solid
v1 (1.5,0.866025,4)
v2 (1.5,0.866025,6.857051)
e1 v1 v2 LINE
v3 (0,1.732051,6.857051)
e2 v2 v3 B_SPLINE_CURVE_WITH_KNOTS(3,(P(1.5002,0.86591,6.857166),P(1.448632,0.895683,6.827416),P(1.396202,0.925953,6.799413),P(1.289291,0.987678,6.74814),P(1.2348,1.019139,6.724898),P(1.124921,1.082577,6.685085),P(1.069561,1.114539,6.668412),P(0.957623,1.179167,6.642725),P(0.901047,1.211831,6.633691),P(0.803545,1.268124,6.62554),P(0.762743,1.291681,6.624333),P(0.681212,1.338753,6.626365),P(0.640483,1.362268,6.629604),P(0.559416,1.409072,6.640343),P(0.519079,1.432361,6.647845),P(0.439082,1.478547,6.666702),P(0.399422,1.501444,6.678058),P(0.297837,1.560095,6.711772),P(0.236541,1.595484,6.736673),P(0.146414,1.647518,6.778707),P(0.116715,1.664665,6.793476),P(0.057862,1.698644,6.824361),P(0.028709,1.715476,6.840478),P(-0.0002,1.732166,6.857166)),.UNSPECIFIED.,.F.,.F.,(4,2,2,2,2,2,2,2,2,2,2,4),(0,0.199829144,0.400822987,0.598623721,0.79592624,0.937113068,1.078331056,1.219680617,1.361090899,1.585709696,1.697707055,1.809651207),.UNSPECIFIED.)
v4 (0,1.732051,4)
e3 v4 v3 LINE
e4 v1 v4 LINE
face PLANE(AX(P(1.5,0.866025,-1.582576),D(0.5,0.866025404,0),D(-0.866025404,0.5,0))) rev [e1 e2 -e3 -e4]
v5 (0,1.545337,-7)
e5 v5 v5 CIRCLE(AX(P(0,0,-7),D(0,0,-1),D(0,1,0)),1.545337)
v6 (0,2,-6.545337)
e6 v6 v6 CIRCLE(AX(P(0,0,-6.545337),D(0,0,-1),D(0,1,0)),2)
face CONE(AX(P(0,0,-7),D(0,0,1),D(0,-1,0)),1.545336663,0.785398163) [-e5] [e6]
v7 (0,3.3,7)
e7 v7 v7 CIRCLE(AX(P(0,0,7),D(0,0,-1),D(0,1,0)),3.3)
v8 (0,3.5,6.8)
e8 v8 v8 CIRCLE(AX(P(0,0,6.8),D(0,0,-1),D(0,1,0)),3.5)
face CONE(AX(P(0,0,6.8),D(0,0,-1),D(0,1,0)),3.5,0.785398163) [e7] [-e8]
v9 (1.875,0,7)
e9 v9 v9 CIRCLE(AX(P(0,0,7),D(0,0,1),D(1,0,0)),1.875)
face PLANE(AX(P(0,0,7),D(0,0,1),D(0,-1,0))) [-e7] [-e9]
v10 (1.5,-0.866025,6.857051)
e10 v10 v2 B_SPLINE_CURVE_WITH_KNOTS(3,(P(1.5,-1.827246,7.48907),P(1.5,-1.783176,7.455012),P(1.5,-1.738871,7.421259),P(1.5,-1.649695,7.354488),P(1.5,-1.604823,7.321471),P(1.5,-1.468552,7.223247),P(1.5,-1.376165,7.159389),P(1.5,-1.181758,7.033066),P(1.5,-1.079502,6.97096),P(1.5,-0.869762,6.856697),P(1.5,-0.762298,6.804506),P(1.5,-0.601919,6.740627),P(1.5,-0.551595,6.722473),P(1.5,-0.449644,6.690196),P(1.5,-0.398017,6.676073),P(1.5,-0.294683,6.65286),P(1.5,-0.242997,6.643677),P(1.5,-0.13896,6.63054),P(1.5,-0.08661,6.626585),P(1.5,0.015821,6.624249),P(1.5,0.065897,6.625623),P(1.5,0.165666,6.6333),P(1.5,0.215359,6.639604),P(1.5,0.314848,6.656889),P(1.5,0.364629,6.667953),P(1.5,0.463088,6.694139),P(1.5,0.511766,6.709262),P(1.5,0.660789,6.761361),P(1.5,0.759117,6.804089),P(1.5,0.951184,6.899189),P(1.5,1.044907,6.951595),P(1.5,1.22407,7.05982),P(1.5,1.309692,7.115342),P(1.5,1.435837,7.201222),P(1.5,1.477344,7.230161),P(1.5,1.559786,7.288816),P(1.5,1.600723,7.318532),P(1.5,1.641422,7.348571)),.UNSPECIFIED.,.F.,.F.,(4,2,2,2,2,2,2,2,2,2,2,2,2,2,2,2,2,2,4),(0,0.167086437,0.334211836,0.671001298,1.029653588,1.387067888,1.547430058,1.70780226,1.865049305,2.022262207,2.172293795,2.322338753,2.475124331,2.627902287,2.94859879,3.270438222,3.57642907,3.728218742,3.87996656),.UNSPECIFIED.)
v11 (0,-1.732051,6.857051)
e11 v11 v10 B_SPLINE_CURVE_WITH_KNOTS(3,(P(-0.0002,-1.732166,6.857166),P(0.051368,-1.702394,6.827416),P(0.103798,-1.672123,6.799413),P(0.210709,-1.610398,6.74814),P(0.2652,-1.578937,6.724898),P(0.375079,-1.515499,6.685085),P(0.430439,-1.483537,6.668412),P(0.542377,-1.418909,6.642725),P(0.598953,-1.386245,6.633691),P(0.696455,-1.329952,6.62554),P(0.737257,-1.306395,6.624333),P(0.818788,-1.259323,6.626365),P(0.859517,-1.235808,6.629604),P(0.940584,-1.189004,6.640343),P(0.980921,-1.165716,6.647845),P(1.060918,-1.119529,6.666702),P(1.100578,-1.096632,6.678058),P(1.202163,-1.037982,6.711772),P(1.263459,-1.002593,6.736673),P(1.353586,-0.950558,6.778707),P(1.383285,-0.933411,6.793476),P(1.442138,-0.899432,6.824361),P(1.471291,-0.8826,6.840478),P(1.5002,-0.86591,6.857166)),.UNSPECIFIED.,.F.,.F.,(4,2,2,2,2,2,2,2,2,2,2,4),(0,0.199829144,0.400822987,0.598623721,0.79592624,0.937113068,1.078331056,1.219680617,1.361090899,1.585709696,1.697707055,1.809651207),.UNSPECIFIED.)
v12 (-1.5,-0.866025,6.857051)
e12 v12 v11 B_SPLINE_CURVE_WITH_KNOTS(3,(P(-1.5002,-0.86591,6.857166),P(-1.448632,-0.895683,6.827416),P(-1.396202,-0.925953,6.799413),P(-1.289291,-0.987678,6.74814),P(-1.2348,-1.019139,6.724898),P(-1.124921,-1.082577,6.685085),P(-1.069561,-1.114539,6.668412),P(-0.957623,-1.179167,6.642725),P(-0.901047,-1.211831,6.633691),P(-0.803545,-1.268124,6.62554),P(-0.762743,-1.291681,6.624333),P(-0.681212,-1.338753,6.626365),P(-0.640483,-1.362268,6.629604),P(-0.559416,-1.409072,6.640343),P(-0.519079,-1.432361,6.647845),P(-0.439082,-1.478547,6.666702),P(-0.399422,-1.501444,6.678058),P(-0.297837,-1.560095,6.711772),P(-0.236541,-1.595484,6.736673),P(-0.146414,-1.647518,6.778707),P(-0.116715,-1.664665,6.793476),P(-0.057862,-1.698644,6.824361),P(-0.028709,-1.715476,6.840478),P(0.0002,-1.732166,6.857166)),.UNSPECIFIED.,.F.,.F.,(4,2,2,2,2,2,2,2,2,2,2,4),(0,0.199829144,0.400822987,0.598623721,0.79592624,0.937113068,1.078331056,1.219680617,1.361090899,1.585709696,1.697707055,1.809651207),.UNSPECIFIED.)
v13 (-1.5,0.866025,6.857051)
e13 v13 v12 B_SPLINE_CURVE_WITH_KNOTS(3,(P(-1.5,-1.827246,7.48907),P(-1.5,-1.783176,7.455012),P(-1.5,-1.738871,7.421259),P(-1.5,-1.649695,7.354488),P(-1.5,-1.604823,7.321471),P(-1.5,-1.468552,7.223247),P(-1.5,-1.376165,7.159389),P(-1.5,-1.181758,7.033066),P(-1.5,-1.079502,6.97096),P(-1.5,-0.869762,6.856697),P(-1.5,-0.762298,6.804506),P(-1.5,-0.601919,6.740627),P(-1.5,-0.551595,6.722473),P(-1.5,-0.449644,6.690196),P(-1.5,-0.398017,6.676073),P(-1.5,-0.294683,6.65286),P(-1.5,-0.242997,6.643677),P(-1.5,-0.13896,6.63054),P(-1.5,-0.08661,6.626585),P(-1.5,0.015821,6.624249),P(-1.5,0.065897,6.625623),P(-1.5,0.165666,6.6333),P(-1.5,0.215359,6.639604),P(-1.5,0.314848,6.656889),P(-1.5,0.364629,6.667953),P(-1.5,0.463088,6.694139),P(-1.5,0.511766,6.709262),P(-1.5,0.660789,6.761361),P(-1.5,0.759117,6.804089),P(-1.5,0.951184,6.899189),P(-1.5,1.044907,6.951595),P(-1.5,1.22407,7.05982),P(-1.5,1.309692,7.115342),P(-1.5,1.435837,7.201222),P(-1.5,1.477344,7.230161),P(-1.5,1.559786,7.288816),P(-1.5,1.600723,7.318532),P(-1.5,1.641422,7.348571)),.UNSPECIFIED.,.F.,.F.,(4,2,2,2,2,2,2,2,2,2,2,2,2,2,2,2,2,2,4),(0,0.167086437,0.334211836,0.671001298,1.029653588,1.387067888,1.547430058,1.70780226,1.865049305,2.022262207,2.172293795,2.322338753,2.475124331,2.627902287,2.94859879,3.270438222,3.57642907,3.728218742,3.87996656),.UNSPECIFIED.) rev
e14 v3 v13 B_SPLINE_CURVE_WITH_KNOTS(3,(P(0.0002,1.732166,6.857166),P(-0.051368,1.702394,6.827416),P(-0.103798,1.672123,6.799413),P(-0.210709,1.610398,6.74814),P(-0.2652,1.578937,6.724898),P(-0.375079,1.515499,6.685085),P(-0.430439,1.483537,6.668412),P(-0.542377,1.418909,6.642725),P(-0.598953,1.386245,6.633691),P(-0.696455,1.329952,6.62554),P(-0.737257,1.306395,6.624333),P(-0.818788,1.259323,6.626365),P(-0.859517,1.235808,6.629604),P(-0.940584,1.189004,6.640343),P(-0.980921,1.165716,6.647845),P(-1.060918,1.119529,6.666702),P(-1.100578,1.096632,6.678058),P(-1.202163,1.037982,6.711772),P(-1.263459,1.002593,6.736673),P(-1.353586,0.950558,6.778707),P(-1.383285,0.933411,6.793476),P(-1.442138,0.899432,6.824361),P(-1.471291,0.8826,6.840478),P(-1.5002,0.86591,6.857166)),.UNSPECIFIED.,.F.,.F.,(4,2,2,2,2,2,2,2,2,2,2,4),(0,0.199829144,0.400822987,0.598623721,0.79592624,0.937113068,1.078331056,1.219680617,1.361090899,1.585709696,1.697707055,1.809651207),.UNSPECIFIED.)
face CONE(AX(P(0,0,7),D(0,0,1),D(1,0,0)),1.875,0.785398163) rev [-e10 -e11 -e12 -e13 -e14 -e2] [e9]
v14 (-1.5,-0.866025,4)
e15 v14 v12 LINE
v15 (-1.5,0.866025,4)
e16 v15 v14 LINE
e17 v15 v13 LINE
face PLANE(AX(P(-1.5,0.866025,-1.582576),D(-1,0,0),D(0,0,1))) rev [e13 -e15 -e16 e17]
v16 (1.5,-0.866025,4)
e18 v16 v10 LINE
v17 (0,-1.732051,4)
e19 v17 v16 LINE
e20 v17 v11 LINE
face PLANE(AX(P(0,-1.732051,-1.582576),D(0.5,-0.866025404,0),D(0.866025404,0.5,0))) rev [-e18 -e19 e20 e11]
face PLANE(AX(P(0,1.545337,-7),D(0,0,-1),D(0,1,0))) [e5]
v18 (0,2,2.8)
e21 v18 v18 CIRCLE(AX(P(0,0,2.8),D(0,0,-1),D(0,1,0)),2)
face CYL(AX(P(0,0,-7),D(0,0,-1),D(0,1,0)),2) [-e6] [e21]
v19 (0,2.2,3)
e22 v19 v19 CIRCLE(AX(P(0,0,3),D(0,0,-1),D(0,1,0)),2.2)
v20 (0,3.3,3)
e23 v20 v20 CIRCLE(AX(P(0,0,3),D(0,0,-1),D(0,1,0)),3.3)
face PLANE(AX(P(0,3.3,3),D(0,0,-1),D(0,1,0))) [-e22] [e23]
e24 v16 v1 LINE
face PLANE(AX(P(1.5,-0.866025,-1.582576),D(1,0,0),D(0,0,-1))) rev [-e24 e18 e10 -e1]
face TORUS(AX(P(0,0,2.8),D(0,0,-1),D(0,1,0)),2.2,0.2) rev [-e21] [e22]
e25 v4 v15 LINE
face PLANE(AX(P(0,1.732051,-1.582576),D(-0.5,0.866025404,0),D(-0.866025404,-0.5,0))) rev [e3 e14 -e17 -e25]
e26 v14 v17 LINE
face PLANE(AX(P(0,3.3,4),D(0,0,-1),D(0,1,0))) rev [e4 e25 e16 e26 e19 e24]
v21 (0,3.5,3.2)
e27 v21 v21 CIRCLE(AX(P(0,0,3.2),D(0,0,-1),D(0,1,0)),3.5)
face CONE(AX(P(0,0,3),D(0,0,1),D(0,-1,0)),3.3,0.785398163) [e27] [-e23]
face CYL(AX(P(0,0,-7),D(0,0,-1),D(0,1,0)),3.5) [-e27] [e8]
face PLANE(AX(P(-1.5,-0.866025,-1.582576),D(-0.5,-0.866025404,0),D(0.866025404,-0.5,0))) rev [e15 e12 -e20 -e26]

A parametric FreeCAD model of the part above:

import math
import FreeCAD as App
import Part
import Sketcher

V = App.Vector
Q = App.Units.Quantity

doc = App.newDocument("Part")
params = doc.addObject("Spreadsheet::Sheet", "Params")
for row, (alias, value) in enumerate([
    ("sketch1_radius", "0.2 mm"),
    ("sketch1_height", "14 mm"),
    ("sketch1_width", "3.3 mm"),
    ("sketch1_width2", "1.1 mm"),
    ("sketch1_height2", "3.6 mm"),
    ("revolution_angle", "360 deg"),
    ("pocket1_length", "3 mm"),
    ("groove_angle", "360 deg"),
], start=1):
    params.set(f"A{row}", alias)
    params.set(f"B{row}", "=" + value)
    params.setAlias(f"B{row}", alias)

body = doc.addObject("PartDesign::Body", "Body")

sketch1 = body.newObject("Sketcher::SketchObject", "Sketch")
sketch1.AttachmentSupport = (doc.getObject("YZ_Plane"), [""])
sketch1.MapMode = "FlatFace"
sketch1.addGeometry(Part.LineSegment(V(3.3, 7, 0), V(0, 7, 0)), False)
sketch1.addGeometry(Part.LineSegment(V(0, 7, 0), V(0, -7, 0)), False)
sketch1.addGeometry(Part.LineSegment(V(0, -7, 0), V(1.55, -7, 0)), False)
sketch1.addGeometry(Part.LineSegment(V(1.55, -7, 0), V(2, -6.55, 0)), False)
sketch1.addGeometry(Part.LineSegment(V(2, -6.55, 0), V(2, 2.8, 0)), False)
sketch1.addGeometry(Part.ArcOfCircle(Part.Circle(V(2.2, 2.8, 0), V(0, 0, 1), 0.2), math.radians(90), math.radians(180)), False)
sketch1.addGeometry(Part.LineSegment(V(2.2, 3, 0), V(3.3, 3, 0)), False)
sketch1.addGeometry(Part.LineSegment(V(3.3, 3, 0), V(3.5, 3.2, 0)), False)
sketch1.addGeometry(Part.LineSegment(V(3.5, 3.2, 0), V(3.5, 6.8, 0)), False)
sketch1.addGeometry(Part.LineSegment(V(3.5, 6.8, 0), V(3.3, 7, 0)), False)
sketch1.addConstraint(Sketcher.Constraint("Coincident", 0, 2, 1, 1))
sketch1.addConstraint(Sketcher.Constraint("Coincident", 1, 2, 2, 1))
sketch1.addConstraint(Sketcher.Constraint("Coincident", 2, 2, 3, 1))
sketch1.addConstraint(Sketcher.Constraint("Coincident", 3, 2, 4, 1))
sketch1.addConstraint(Sketcher.Constraint("Tangent", 4, 2, 5, 2))
sketch1.addConstraint(Sketcher.Constraint("Tangent", 5, 1, 6, 1))
sketch1.addConstraint(Sketcher.Constraint("Coincident", 6, 2, 7, 1))
sketch1.addConstraint(Sketcher.Constraint("Coincident", 7, 2, 8, 1))
sketch1.addConstraint(Sketcher.Constraint("Coincident", 8, 2, 9, 1))
sketch1.addConstraint(Sketcher.Constraint("Coincident", 9, 2, 0, 1))
sketch1.addConstraint(Sketcher.Constraint("Horizontal", 0))
sketch1.addConstraint(Sketcher.Constraint("Vertical", 1))
sketch1.addConstraint(Sketcher.Constraint("Horizontal", 2))
sketch1.addConstraint(Sketcher.Constraint("Vertical", 4))
sketch1.addConstraint(Sketcher.Constraint("Horizontal", 6))
sketch1.addConstraint(Sketcher.Constraint("Vertical", 8))
sketch1.addConstraint(Sketcher.Constraint("Symmetric", 0, 2, 1, 2, -1, 1))
sketch1.addConstraint(Sketcher.Constraint("Parallel", 3, 7))
sketch1.addConstraint(Sketcher.Constraint("Perpendicular", 7, 9))
sketch1.addConstraint(Sketcher.Constraint("Vertical", 6, 2, 9, 2))
sketch1.addConstraint(Sketcher.Constraint("Equal", 7, 9))
sketch1.addConstraint(Sketcher.Constraint("Radius", 5, Q("0.2 mm")))
sketch1.addConstraint(Sketcher.Constraint("DistanceY", 1, 2, 1, 1, Q("14 mm")))
sketch1.addConstraint(Sketcher.Constraint("DistanceX", 0, 2, 0, 1, Q("3.3 mm")))
sketch1.addConstraint(Sketcher.Constraint("DistanceX", 6, 1, 6, 2, Q("1.1 mm")))
sketch1.addConstraint(Sketcher.Constraint("DistanceY", 8, 1, 8, 2, Q("3.6 mm")))
sketch1.addConstraint(Sketcher.Constraint("DistanceY", -1, 1, 5, 1, Q("3 mm")))
sketch1.addConstraint(Sketcher.Constraint("Distance", 3, Q("0.642991 mm")))
sketch1.setExpression("Constraints[21]", "Params.sketch1_radius")
sketch1.setExpression("Constraints[22]", "Params.sketch1_height")
sketch1.setExpression("Constraints[23]", "Params.sketch1_width")
sketch1.setExpression("Constraints[24]", "Params.sketch1_width2")
sketch1.setExpression("Constraints[25]", "Params.sketch1_height2")
revolution = body.newObject("PartDesign::Revolution", "Revolution")
revolution.Profile = sketch1
revolution.ReferenceAxis = (sketch1, ["V_Axis"])
revolution.setExpression("Angle", "Params.revolution_angle")

sketch2 = body.newObject("Sketcher::SketchObject", "Sketch001")
sketch2.AttachmentSupport = (doc.getObject("XY_Plane"), [""])
sketch2.MapMode = "FlatFace"
sketch2.AttachmentOffset = App.Placement(V(0, 0, 7), App.Rotation())
sketch2.addGeometry(Part.LineSegment(V(1.5, -0.9, 0), V(1.5, 0.9, 0)), False)
sketch2.addGeometry(Part.LineSegment(V(1.5, 0.9, 0), V(0, 1.7, 0)), False)
sketch2.addGeometry(Part.LineSegment(V(0, 1.7, 0), V(-1.5, 0.9, 0)), False)
sketch2.addGeometry(Part.LineSegment(V(-1.5, 0.9, 0), V(-1.5, -0.9, 0)), False)
sketch2.addGeometry(Part.LineSegment(V(-1.5, -0.9, 0), V(0, -1.7, 0)), False)
sketch2.addGeometry(Part.LineSegment(V(0, -1.7, 0), V(1.5, -0.9, 0)), False)
sketch2.addConstraint(Sketcher.Constraint("Coincident", 0, 2, 1, 1))
sketch2.addConstraint(Sketcher.Constraint("Coincident", 1, 2, 2, 1))
sketch2.addConstraint(Sketcher.Constraint("Coincident", 2, 2, 3, 1))
sketch2.addConstraint(Sketcher.Constraint("Coincident", 3, 2, 4, 1))
sketch2.addConstraint(Sketcher.Constraint("Coincident", 4, 2, 5, 1))
sketch2.addConstraint(Sketcher.Constraint("Coincident", 5, 2, 0, 1))
sketch2.addConstraint(Sketcher.Constraint("Vertical", 0))
sketch2.addConstraint(Sketcher.Constraint("Vertical", 3))
sketch2.addConstraint(Sketcher.Constraint("Symmetric", 0, 2, 3, 2, -1, 1))
sketch2.addConstraint(Sketcher.Constraint("Symmetric", 1, 2, 4, 2, -1, 1))
sketch2.addConstraint(Sketcher.Constraint("PointOnObject", 1, 2, -2))
sketch2.addConstraint(Sketcher.Constraint("Parallel", 2, 5))
sketch2.addConstraint(Sketcher.Constraint("Horizontal", 0, 2, 2, 2))
sketch2.addConstraint(Sketcher.Constraint("Angle", 1, Q("150 deg")))
sketch2.addConstraint(Sketcher.Constraint("DistanceX", 2, 2, 0, 2, Q("3 mm")))
sketch2.addConstraint(Sketcher.Constraint("DistanceY", 0, 1, 0, 2, Q("1.732051 mm")))
pocket1 = body.newObject("PartDesign::Pocket", "Pocket")
pocket1.Profile = sketch2
pocket1.setExpression("Length", "Params.pocket1_length")

sketch3 = body.newObject("Sketcher::SketchObject", "Sketch002")
sketch3.AttachmentSupport = (doc.getObject("YZ_Plane"), [""])
sketch3.MapMode = "FlatFace"
sketch3.addGeometry(Part.LineSegment(V(0, 7, 0), V(-1.9, 7, 0)), False)
sketch3.addGeometry(Part.LineSegment(V(-1.9, 7, 0), V(0, 5.1, 0)), False)
sketch3.addGeometry(Part.LineSegment(V(0, 5.1, 0), V(0, 7, 0)), False)
sketch3.addConstraint(Sketcher.Constraint("Coincident", 0, 2, 1, 1))
sketch3.addConstraint(Sketcher.Constraint("Coincident", 1, 2, 2, 1))
sketch3.addConstraint(Sketcher.Constraint("Coincident", 2, 2, 0, 1))
sketch3.addConstraint(Sketcher.Constraint("Horizontal", 0))
sketch3.addConstraint(Sketcher.Constraint("Vertical", 2))
sketch3.addConstraint(Sketcher.Constraint("PointOnObject", 1, 2, -2))
sketch3.addConstraint(Sketcher.Constraint("Equal", 0, 2))
sketch3.addConstraint(Sketcher.Constraint("DistanceY", -1, 1, 0, 2, Q("7 mm")))
sketch3.addConstraint(Sketcher.Constraint("DistanceX", 0, 2, 0, 1, Q("1.875 mm")))
groove = body.newObject("PartDesign::Groove", "Groove")
groove.Profile = sketch3
groove.ReferenceAxis = (sketch3, ["V_Axis"])
groove.setExpression("Angle", "Params.groove_angle")

doc.recompute()
